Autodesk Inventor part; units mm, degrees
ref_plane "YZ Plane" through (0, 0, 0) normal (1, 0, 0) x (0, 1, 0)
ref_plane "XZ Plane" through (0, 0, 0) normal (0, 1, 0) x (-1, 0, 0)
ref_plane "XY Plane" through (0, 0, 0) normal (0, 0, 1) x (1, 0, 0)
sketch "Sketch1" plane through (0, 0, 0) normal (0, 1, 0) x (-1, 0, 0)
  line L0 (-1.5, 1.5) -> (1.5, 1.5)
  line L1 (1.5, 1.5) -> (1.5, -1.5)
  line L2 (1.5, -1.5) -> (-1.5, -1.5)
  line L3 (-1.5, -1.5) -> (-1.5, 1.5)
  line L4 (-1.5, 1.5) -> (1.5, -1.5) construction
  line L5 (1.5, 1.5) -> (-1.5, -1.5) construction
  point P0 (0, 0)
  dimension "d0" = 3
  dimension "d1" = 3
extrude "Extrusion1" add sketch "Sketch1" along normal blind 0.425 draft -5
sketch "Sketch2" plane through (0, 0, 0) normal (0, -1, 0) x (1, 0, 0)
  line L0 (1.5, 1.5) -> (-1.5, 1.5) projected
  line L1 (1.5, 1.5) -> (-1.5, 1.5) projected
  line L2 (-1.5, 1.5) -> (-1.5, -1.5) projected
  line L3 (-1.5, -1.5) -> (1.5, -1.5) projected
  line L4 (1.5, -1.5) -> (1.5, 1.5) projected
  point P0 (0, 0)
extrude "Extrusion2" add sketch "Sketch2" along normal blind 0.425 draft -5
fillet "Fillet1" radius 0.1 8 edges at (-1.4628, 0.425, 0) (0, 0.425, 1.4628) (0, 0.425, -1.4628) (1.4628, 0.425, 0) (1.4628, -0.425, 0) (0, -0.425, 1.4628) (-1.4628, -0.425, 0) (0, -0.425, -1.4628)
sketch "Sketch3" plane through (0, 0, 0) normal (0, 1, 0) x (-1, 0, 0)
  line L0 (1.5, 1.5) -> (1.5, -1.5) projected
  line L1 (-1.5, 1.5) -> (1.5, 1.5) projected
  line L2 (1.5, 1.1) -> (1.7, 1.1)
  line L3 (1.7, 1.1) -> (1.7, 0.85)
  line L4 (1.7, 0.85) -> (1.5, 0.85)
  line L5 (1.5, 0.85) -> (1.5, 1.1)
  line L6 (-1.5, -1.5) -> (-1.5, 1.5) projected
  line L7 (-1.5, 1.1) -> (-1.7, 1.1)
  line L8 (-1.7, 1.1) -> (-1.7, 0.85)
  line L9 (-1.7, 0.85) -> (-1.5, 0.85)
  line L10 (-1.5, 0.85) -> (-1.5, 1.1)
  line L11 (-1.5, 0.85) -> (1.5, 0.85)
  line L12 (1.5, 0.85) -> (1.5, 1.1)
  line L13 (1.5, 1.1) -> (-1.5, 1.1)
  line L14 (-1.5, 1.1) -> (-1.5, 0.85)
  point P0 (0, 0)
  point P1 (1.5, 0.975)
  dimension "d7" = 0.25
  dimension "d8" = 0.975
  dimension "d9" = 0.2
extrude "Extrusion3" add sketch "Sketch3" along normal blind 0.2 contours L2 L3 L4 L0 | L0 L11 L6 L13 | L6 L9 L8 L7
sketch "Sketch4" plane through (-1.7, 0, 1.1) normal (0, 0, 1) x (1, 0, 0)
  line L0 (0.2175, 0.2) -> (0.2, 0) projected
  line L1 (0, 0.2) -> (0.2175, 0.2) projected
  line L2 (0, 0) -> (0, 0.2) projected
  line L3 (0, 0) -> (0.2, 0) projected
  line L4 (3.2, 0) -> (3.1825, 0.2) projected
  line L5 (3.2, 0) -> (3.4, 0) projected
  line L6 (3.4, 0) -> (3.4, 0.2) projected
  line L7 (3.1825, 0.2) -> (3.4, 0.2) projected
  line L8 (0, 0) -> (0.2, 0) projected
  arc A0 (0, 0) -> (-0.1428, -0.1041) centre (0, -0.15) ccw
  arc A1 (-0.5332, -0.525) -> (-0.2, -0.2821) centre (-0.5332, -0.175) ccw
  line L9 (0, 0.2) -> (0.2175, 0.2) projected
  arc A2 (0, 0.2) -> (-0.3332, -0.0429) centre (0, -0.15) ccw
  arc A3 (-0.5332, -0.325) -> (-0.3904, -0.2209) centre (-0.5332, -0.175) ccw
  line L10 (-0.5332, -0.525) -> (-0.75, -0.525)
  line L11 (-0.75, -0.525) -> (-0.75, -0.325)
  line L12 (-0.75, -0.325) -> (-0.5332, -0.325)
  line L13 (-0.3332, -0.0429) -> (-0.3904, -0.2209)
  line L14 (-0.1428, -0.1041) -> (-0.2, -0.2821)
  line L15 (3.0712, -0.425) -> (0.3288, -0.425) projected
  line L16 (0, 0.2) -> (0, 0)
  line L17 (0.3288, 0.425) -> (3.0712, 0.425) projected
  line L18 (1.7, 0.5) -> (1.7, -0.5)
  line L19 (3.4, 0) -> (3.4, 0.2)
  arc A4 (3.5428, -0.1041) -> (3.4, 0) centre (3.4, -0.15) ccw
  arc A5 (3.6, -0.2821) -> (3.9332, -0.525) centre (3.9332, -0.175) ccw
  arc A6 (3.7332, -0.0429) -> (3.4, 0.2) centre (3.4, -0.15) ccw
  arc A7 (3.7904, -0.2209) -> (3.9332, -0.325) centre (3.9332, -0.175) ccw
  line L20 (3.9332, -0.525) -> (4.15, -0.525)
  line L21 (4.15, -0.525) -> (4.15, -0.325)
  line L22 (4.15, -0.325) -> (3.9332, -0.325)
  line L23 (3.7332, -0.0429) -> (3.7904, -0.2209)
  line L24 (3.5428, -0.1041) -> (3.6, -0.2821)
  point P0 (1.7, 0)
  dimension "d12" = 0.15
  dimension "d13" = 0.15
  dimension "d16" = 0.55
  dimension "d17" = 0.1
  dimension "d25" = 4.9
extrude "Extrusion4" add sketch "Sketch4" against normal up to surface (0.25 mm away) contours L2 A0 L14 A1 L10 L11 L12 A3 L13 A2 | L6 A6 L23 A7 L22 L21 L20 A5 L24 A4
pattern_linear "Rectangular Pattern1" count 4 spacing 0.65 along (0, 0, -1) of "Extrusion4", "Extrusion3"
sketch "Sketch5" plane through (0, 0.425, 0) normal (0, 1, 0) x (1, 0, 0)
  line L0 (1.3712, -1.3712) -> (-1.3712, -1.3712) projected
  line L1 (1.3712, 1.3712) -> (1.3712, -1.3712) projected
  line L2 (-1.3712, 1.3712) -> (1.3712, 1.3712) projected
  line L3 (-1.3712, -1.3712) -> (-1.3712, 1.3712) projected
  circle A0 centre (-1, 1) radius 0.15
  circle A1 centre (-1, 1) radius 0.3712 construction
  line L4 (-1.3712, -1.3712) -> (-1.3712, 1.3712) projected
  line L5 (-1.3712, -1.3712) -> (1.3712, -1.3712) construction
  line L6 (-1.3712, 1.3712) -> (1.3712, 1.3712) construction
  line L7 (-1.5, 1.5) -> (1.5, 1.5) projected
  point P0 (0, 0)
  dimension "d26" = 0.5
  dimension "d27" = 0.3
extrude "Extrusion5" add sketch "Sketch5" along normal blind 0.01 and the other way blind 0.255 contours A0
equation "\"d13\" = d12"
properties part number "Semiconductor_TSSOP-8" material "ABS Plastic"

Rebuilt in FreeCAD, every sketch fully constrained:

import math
import FreeCAD as App
import Part
import Sketcher
from FreeCAD import Vector
Q = App.Units.Quantity


def edges_at(feature, points):
    """Names of the edges that pass closest to the given points."""
    edges = feature.Shape.Edges
    near = lambda p: min(range(len(edges)), key=lambda i: edges[i].distToShape(Part.Vertex(*p))[0])
    return sorted({f"Edge{near(p) + 1}" for p in points})

doc = App.newDocument("Part")
body = doc.addObject("PartDesign::Body", "Body")

sketch1 = body.newObject("Sketcher::SketchObject", "Sketch")
sketch1.AttachmentSupport = (doc.getObject("XZ_Plane"), [""])
sketch1.MapMode = "FlatFace"
sketch1.addGeometry([
    Part.LineSegment(Vector(-1.5, 1.5, 0), Vector(1.5, 1.5, 0)),
    Part.LineSegment(Vector(1.5, 1.5, 0), Vector(1.5, -1.5, 0)),
    Part.LineSegment(Vector(1.5, -1.5, 0), Vector(-1.5, -1.5, 0)),
    Part.LineSegment(Vector(-1.5, -1.5, 0), Vector(-1.5, 1.5, 0)),
], False)
sketch1.addConstraint([
    Sketcher.Constraint("Coincident", 0, 2, 1, 1),
    Sketcher.Constraint("Coincident", 1, 2, 2, 1),
    Sketcher.Constraint("Coincident", 2, 2, 3, 1),
    Sketcher.Constraint("Coincident", 3, 2, 0, 1),
    Sketcher.Constraint("Horizontal", 0),
    Sketcher.Constraint("Vertical", 1),
    Sketcher.Constraint("Horizontal", 2),
    Sketcher.Constraint("Vertical", 3),
    Sketcher.Constraint("Symmetric", 0, 2, 2, 2, -1, 1),
    Sketcher.Constraint("Equal", 2, 1),
    Sketcher.Constraint("DistanceX", 0, 1, 0, 2, Q("3 mm")),
])
pad1 = body.newObject("PartDesign::Pad", "Pad")
pad1.Profile = sketch1
pad1.Length = 0.425
pad1.Reversed = True
pad1.TaperAngle = -5

sketch2 = body.newObject("Sketcher::SketchObject", "Sketch001")
sketch2.AttachmentSupport = (doc.getObject("XZ_Plane"), [""])
sketch2.MapMode = "FlatFace"
sketch2.addGeometry([
    Part.LineSegment(Vector(1.5, -1.5, 0), Vector(1.5, 1.5, 0)),
    Part.LineSegment(Vector(1.5, 1.5, 0), Vector(-1.5, 1.5, 0)),
    Part.LineSegment(Vector(-1.5, 1.5, 0), Vector(-1.5, -1.5, 0)),
    Part.LineSegment(Vector(-1.5, -1.5, 0), Vector(1.5, -1.5, 0)),
], False)
sketch2.addConstraint([
    Sketcher.Constraint("Coincident", 0, 2, 1, 1),
    Sketcher.Constraint("Coincident", 1, 2, 2, 1),
    Sketcher.Constraint("Coincident", 2, 2, 3, 1),
    Sketcher.Constraint("Coincident", 3, 2, 0, 1),
    Sketcher.Constraint("Vertical", 0),
    Sketcher.Constraint("Horizontal", 1),
    Sketcher.Constraint("Vertical", 2),
    Sketcher.Constraint("Horizontal", 3),
    Sketcher.Constraint("Symmetric", 0, 2, 2, 2, -1, 1),
    Sketcher.Constraint("Equal", 3, 0),
    Sketcher.Constraint("DistanceX", 1, 2, 1, 1, Q("3 mm")),
])
pad2 = body.newObject("PartDesign::Pad", "Pad001")
pad2.Profile = sketch2
pad2.Length = 0.425
pad2.TaperAngle = -5
doc.recompute()

fillet = body.newObject("PartDesign::Fillet", "Fillet")
fillet.Base = (pad2, edges_at(pad2, [
    (-1.463, 0.425, 0),
    (0, 0.425, 1.463),
    (0, 0.425, -1.463),
    (1.463, 0.425, 0),
    (1.463, -0.425, 0),
    (0, -0.425, 1.463),
    (-1.463, -0.425, 0),
    (0, -0.425, -1.463),
]))
fillet.Radius = 0.1

sketch3 = body.newObject("Sketcher::SketchObject", "Sketch002")
sketch3.AttachmentSupport = (doc.getObject("XZ_Plane"), [""])
sketch3.MapMode = "FlatFace"
sketch3.addGeometry([
    Part.LineSegment(Vector(-1.7, 1.1, 0), Vector(1.7, 1.1, 0)),
    Part.LineSegment(Vector(1.7, 1.1, 0), Vector(1.7, 0.85, 0)),
    Part.LineSegment(Vector(1.7, 0.85, 0), Vector(-1.7, 0.85, 0)),
    Part.LineSegment(Vector(-1.7, 0.85, 0), Vector(-1.7, 1.1, 0)),
], False)
sketch3.addConstraint([
    Sketcher.Constraint("Coincident", 0, 2, 1, 1),
    Sketcher.Constraint("Coincident", 1, 2, 2, 1),
    Sketcher.Constraint("Coincident", 2, 2, 3, 1),
    Sketcher.Constraint("Coincident", 3, 2, 0, 1),
    Sketcher.Constraint("Horizontal", 0),
    Sketcher.Constraint("Vertical", 1),
    Sketcher.Constraint("Horizontal", 2),
    Sketcher.Constraint("Vertical", 3),
    Sketcher.Constraint("DistanceY", 1, 2, 1, 1, Q("0.25 mm")),
    Sketcher.Constraint("DistanceX", 0, 1, 0, 2, Q("3.4 mm")),
    Sketcher.Constraint("DistanceX", -1, 1, 0, 2, Q("1.7 mm")),
    Sketcher.Constraint("DistanceY", -1, 1, 0, 2, Q("1.1 mm")),
])
pad3 = body.newObject("PartDesign::Pad", "Pad002")
pad3.Profile = sketch3
pad3.Length = 0.2
pad3.Reversed = True

sketch4 = body.newObject("Sketcher::SketchObject", "Sketch003")
sketch4.AttachmentSupport = (doc.getObject("XY_Plane"), [""])
sketch4.MapMode = "FlatFace"
sketch4.AttachmentOffset = App.Placement(Vector(0, 0, 1.1), App.Rotation())
sketch4.addGeometry([
    Part.LineSegment(Vector(-1.7, 0, 0), Vector(-1.7, 0.2, 0)),
    Part.ArcOfCircle(Part.Circle(Vector(-1.7, -0.15, 0), Vector(0, 0, 1), 0.35), math.radians(90), math.radians(162)),
    Part.LineSegment(Vector(-2.03, -0.04, 0), Vector(-2.09, -0.22, 0)),
    Part.ArcOfCircle(Part.Circle(Vector(-2.23, -0.17, 0), Vector(0, 0, 1), 0.15), math.radians(-90), math.radians(-18)),
    Part.LineSegment(Vector(-2.23, -0.33, 0), Vector(-2.45, -0.33, 0)),
    Part.LineSegment(Vector(-2.45, -0.33, 0), Vector(-2.45, -0.53, 0)),
    Part.LineSegment(Vector(-2.45, -0.53, 0), Vector(-2.23, -0.53, 0)),
    Part.ArcOfCircle(Part.Circle(Vector(-2.23, -0.17, 0), Vector(0, 0, 1), 0.35), math.radians(-90), math.radians(-18)),
    Part.LineSegment(Vector(-1.9, -0.28, 0), Vector(-1.84, -0.1, 0)),
    Part.ArcOfCircle(Part.Circle(Vector(-1.7, -0.15, 0), Vector(0, 0, 1), 0.15), math.radians(90), math.radians(162)),
    Part.LineSegment(Vector(1.7, 0.2, 0), Vector(1.7, 0, 0)),
    Part.ArcOfCircle(Part.Circle(Vector(1.7, -0.15, 0), Vector(0, 0, 1), 0.15), math.radians(18), math.radians(90)),
    Part.LineSegment(Vector(1.84, -0.1, 0), Vector(1.9, -0.28, 0)),
    Part.ArcOfCircle(Part.Circle(Vector(2.23, -0.17, 0), Vector(0, 0, 1), 0.35), math.radians(-162), math.radians(-90)),
    Part.LineSegment(Vector(2.23, -0.53, 0), Vector(2.45, -0.53, 0)),
    Part.LineSegment(Vector(2.45, -0.53, 0), Vector(2.45, -0.33, 0)),
    Part.LineSegment(Vector(2.45, -0.33, 0), Vector(2.23, -0.33, 0)),
    Part.ArcOfCircle(Part.Circle(Vector(2.23, -0.17, 0), Vector(0, 0, 1), 0.15), math.radians(-162), math.radians(-90)),
    Part.LineSegment(Vector(2.09, -0.22, 0), Vector(2.03, -0.04, 0)),
    Part.ArcOfCircle(Part.Circle(Vector(1.7, -0.15, 0), Vector(0, 0, 1), 0.35), math.radians(18), math.radians(90)),
], False)
sketch4.addConstraint([
    Sketcher.Constraint("Coincident", 0, 2, 1, 1),
    Sketcher.Constraint("Tangent", 1, 2, 2, 1),
    Sketcher.Constraint("Tangent", 2, 2, 3, 2),
    Sketcher.Constraint("Tangent", 3, 1, 4, 1),
    Sketcher.Constraint("Coincident", 4, 2, 5, 1),
    Sketcher.Constraint("Coincident", 5, 2, 6, 1),
    Sketcher.Constraint("Tangent", 6, 2, 7, 1),
    Sketcher.Constraint("Tangent", 7, 2, 8, 1),
    Sketcher.Constraint("Tangent", 8, 2, 9, 2),
    Sketcher.Constraint("Coincident", 9, 1, 0, 1),
    Sketcher.Constraint("Coincident", 10, 2, 11, 2),
    Sketcher.Constraint("Tangent", 11, 1, 12, 1),
    Sketcher.Constraint("Tangent", 12, 2, 13, 1),
    Sketcher.Constraint("Tangent", 13, 2, 14, 1),
    Sketcher.Constraint("Coincident", 14, 2, 15, 1),
    Sketcher.Constraint("Coincident", 15, 2, 16, 1),
    Sketcher.Constraint("Tangent", 16, 2, 17, 2),
    Sketcher.Constraint("Tangent", 17, 1, 18, 1),
    Sketcher.Constraint("Tangent", 18, 2, 19, 1),
    Sketcher.Constraint("Coincident", 19, 2, 10, 1),
    Sketcher.Constraint("Vertical", 0),
    Sketcher.Constraint("Horizontal", 4),
    Sketcher.Constraint("Vertical", 5),
    Sketcher.Constraint("Horizontal", 6),
    Sketcher.Constraint("Vertical", 10),
    Sketcher.Constraint("Horizontal", 14),
    Sketcher.Constraint("Vertical", 15),
    Sketcher.Constraint("Horizontal", 16),
    Sketcher.Constraint("Coincident", 7, 3, 3, 3),
    Sketcher.Constraint("Coincident", 9, 3, 1, 3),
    Sketcher.Constraint("Coincident", 17, 3, 13, 3),
    Sketcher.Constraint("Coincident", 19, 3, 11, 3),
    Sketcher.Constraint("Equal", 1, 7),
    Sketcher.Constraint("Equal", 3, 9),
    Sketcher.Constraint("Equal", 9, 11),
    Sketcher.Constraint("Equal", 7, 13),
    Sketcher.Constraint("Equal", 11, 17),
    Sketcher.Constraint("Equal", 13, 19),
    Sketcher.Constraint("Symmetric", 9, 1, 10, 2, -1, 1),
    Sketcher.Constraint("Symmetric", 1, 3, 11, 3, -2),
    Sketcher.Constraint("Symmetric", 3, 3, 13, 3, -2),
    Sketcher.Constraint("Vertical", 9, 3, 0, 2),
    Sketcher.Constraint("Equal", 6, 14),
    Sketcher.Constraint("Radius", 3, Q("0.15 mm")),
    Sketcher.Constraint("Radius", 1, Q("0.35 mm")),
    Sketcher.Constraint("DistanceX", 12, 2, 14, 2, Q("0.55 mm")),
    Sketcher.Constraint("DistanceX", 1, 3, -1, 1, Q("1.7 mm")),
    Sketcher.Constraint("DistanceX", 7, 2, -1, 1, Q("1.9 mm")),
    Sketcher.Constraint("Distance", 2, Q("0.187 mm")),
])
pad4 = body.newObject("PartDesign::Pad", "Pad003")
pad4.Profile = sketch4
pad4.Length = 0.25
pad4.Reversed = True
doc.recompute()

linearpattern = body.newObject("PartDesign::LinearPattern", "LinearPattern")
linearpattern.Originals = [pad4, pad3]
linearpattern.Direction = (doc.getObject("Z_Axis"), [""])
linearpattern.Mode = "offset"
linearpattern.Offset = 0.65
linearpattern.Occurrences = 4
linearpattern.Reversed = True
body.Tip = linearpattern

sketch5 = body.newObject("Sketcher::SketchObject", "Sketch004")
sketch5.AttachmentSupport = (doc.getObject("XZ_Plane"), [""])
sketch5.MapMode = "FlatFace"
sketch5.AttachmentOffset = App.Placement(Vector(0, 0, -0.425), App.Rotation())
sketch5.addGeometry(Part.Circle(Vector(-1, -1, 0), Vector(0, 0, 1), 0.15), False)
sketch5.addConstraint([
    Sketcher.Constraint("Diameter", 0, Q("0.3 mm")),
    Sketcher.Constraint("DistanceX", 0, 3, -1, 1, Q("1 mm")),
    Sketcher.Constraint("DistanceY", 0, 3, -1, 1, Q("1 mm")),
])
pad5 = body.newObject("PartDesign::Pad", "Pad004")
pad5.Profile = sketch5
pad5.Type = "TwoLengths"
pad5.Length = 0.01
pad5.Length2 = 0.255
pad5.Reversed = True

doc.recompute()
